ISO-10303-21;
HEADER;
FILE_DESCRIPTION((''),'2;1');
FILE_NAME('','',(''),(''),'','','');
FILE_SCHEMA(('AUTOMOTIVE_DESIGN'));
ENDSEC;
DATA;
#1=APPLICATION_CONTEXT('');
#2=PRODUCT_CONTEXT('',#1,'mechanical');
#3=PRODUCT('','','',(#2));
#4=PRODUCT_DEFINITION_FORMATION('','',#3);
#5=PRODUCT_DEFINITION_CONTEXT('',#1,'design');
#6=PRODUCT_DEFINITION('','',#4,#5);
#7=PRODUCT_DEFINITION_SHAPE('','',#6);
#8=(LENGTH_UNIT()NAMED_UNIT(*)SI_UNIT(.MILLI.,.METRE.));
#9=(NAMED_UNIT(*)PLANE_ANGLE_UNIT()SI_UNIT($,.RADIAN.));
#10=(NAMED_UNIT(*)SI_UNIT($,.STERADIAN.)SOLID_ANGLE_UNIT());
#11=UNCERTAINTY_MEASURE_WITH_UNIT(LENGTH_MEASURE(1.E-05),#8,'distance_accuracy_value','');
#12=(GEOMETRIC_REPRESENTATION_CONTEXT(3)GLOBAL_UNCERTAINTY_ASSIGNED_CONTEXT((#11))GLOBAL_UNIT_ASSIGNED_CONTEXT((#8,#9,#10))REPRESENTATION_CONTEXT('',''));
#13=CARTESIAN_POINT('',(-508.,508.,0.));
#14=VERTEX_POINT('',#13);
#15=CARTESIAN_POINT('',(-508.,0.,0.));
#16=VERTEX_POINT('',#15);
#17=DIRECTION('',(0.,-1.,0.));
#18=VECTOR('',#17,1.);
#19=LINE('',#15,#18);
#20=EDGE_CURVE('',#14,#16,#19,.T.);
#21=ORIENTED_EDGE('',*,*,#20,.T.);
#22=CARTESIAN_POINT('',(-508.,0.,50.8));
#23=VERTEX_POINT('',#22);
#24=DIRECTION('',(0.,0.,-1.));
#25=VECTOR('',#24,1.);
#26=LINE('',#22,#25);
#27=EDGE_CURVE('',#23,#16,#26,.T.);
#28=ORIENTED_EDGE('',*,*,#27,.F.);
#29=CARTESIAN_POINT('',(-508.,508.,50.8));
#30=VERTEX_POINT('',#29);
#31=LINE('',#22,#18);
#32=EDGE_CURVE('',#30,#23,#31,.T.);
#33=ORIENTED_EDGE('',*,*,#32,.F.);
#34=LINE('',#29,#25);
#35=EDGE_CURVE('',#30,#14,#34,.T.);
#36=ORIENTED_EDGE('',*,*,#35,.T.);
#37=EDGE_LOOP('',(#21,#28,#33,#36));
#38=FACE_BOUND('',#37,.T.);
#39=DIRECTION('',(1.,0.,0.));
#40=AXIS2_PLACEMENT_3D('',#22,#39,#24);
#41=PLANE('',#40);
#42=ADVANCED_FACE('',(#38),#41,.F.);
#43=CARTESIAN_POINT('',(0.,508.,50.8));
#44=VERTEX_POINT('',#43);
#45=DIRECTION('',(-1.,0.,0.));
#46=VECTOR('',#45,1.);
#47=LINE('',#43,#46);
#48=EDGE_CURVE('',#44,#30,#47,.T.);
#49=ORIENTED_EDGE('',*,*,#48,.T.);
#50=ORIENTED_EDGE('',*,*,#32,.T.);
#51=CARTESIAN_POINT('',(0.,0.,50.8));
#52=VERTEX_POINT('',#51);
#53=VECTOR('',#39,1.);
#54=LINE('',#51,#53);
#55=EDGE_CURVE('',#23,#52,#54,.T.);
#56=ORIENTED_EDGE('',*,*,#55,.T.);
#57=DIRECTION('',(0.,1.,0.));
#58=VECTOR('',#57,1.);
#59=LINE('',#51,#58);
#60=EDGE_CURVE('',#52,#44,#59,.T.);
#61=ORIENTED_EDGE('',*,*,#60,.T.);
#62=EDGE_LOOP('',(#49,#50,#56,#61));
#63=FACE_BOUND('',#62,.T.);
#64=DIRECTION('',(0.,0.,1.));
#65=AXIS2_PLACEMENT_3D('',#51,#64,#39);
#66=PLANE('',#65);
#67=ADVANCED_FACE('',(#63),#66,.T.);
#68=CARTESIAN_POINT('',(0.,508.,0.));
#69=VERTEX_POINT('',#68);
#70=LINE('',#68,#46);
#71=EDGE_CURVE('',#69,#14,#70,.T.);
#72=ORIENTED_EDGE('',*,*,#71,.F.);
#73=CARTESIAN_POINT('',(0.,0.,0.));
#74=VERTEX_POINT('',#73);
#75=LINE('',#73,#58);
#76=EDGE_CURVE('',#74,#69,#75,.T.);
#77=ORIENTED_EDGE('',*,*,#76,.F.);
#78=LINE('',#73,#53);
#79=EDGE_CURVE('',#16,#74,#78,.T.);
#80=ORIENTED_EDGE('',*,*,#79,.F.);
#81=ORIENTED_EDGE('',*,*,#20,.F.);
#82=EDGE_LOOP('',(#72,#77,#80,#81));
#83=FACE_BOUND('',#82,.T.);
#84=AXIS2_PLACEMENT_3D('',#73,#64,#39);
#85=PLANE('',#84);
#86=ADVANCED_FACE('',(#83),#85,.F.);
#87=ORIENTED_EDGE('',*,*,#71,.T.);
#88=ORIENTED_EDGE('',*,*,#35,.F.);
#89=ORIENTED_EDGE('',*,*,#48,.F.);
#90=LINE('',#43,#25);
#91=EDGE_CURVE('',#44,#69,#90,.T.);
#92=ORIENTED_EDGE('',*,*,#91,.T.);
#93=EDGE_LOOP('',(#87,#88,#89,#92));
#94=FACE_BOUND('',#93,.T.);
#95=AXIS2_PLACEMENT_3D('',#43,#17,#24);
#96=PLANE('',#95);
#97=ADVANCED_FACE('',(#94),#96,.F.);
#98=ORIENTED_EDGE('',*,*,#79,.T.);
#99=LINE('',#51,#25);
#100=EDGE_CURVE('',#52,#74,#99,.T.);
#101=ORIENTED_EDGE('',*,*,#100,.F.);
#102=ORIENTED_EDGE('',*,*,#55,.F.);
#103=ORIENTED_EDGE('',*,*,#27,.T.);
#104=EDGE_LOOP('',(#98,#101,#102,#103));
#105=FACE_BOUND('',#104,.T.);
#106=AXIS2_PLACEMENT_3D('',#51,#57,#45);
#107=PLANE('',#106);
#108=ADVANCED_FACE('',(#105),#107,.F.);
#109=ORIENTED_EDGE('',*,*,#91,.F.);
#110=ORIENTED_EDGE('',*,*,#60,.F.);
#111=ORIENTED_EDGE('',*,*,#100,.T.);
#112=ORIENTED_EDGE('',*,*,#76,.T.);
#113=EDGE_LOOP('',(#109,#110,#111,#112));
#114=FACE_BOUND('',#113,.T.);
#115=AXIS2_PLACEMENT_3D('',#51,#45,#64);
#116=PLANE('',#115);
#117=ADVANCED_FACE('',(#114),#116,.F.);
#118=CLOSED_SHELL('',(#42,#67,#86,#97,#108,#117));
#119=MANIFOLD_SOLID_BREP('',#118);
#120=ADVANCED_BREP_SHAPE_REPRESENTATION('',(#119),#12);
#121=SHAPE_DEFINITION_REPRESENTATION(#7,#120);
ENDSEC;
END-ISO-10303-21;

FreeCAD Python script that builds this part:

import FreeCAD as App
import Part
import Sketcher

V = App.Vector
Q = App.Units.Quantity


def add_polygon(sketch, points):
    """Adds a closed chain of lines whose ends are joined by coincident constraints."""
    first, n = sketch.GeometryCount, len(points)
    for a, b in zip(points, points[1:] + points[:1]):
        sketch.addGeometry(Part.LineSegment(App.Vector(*a, 0), App.Vector(*b, 0)), False)
    for i in range(n):
        sketch.addConstraint(Sketcher.Constraint("Coincident", first + i, 2, first + (i + 1) % n, 1))

doc = App.newDocument("Part")
body = doc.addObject("PartDesign::Body", "Body")

# Sketch on XY plane
sketch1 = body.newObject("Sketcher::SketchObject", "Sketch")
sketch1.AttachmentSupport = (doc.getObject("XY_Plane"), [""])
sketch1.MapMode = "FlatFace"
add_polygon(sketch1, [(-508, 508), (-508, 0), (0, 0), (0, 508)])  # lines 0-3
sketch1.addConstraint(Sketcher.Constraint("Vertical", 0))
sketch1.addConstraint(Sketcher.Constraint("Horizontal", 1))
sketch1.addConstraint(Sketcher.Constraint("Vertical", 2))
sketch1.addConstraint(Sketcher.Constraint("Horizontal", 3))
sketch1.addConstraint(Sketcher.Constraint("Coincident", 1, 2, -1, 1))
sketch1.addConstraint(Sketcher.Constraint("Equal", 3, 0))
sketch1.addConstraint(Sketcher.Constraint("DistanceX", 1, 1, 1, 2, Q("20 in")))
pad1 = body.newObject("PartDesign::Pad", "Pad")
pad1.Profile = sketch1
pad1.Length = Q("2 in")

doc.recompute()
